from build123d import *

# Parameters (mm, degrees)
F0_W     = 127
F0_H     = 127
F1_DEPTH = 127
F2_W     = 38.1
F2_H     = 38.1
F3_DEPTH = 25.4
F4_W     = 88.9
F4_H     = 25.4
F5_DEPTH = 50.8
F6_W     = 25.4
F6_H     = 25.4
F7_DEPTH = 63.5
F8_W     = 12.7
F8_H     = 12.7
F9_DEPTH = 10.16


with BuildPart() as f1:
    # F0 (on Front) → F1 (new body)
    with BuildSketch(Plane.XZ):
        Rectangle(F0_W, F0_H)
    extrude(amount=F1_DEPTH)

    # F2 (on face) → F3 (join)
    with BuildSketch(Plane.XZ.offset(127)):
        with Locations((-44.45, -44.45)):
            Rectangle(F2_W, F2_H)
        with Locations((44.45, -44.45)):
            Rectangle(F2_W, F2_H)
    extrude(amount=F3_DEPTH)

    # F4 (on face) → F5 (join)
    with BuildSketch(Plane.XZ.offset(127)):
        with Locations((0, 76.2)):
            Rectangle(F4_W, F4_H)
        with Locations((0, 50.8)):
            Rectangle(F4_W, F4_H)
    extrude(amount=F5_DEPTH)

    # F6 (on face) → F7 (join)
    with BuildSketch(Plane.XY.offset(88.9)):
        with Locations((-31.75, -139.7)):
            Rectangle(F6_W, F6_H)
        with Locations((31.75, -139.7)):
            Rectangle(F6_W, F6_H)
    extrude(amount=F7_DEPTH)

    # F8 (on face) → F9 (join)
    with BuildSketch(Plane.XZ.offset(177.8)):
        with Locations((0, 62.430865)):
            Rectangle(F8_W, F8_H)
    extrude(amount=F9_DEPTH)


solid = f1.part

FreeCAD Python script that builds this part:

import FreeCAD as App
import Part
import Sketcher

V = App.Vector
Q = App.Units.Quantity


def add_polygon(sketch, points):
    """Adds a closed chain of lines whose ends are joined by coincident constraints."""
    first, n = sketch.GeometryCount, len(points)
    for a, b in zip(points, points[1:] + points[:1]):
        sketch.addGeometry(Part.LineSegment(App.Vector(*a, 0), App.Vector(*b, 0)), False)
    for i in range(n):
        sketch.addConstraint(Sketcher.Constraint("Coincident", first + i, 2, first + (i + 1) % n, 1))

doc = App.newDocument("Part")
params = doc.addObject("Spreadsheet::Sheet", "Params")
for row, (alias, value) in enumerate([
    ("sketch1_width", "5 in"),
    ("pad1_length", "5 in"),
    ("sketch2_width", "1.5 in"),
    ("pad2_length", "1 in"),
    ("sketch3_height", "2 in"),
    ("sketch3_width", "3.5 in"),
    ("pad3_length", "2 in"),
    ("sketch4_width", "1 in"),
    ("pad4_length", "2.5 in"),
    ("sketch5_width", "0.5 in"),
    ("pad5_length", "0.4 in"),
], start=1):
    params.set(f"A{row}", alias)
    params.set(f"B{row}", "=" + value)
    params.setAlias(f"B{row}", alias)

body = doc.addObject("PartDesign::Body", "Body")

sketch1 = body.newObject("Sketcher::SketchObject", "Sketch")
sketch1.AttachmentSupport = (doc.getObject("XZ_Plane"), [""])
sketch1.MapMode = "FlatFace"
add_polygon(sketch1, [(-63.5, 63.5), (-63.5, -63.5), (63.5, -63.5), (63.5, 63.5)])
sketch1.addConstraint([
    Sketcher.Constraint("Vertical", 0),
    Sketcher.Constraint("Horizontal", 1),
    Sketcher.Constraint("Vertical", 2),
    Sketcher.Constraint("Horizontal", 3),
    Sketcher.Constraint("Symmetric", 0, 2, 2, 2, -1, 1),
    Sketcher.Constraint("Equal", 3, 0),
    Sketcher.Constraint("DistanceX", 1, 1, 1, 2, Q("5 in")),
])
sketch1.setExpression("Constraints[10]", "Params.sketch1_width")
pad1 = body.newObject("PartDesign::Pad", "Pad")
pad1.Profile = sketch1
pad1.setExpression("Length", "Params.pad1_length")

sketch2 = body.newObject("Sketcher::SketchObject", "Sketch001")
sketch2.AttachmentSupport = (doc.getObject("XZ_Plane"), [""])
sketch2.MapMode = "FlatFace"
sketch2.AttachmentOffset = App.Placement(V(0, 0, 5 * 25.4), App.Rotation())
add_polygon(sketch2, [(-63.5, -25.4), (-63.5, -63.5), (-25.4, -63.5), (-25.4, -25.4)])
add_polygon(sketch2, [(25.4, -25.4), (25.4, -63.5), (63.5, -63.5), (63.5, -25.4)])
sketch2.addConstraint([
    Sketcher.Constraint("Vertical", 0),
    Sketcher.Constraint("Horizontal", 1),
    Sketcher.Constraint("Vertical", 2),
    Sketcher.Constraint("Horizontal", 3),
    Sketcher.Constraint("Vertical", 4),
    Sketcher.Constraint("Horizontal", 5),
    Sketcher.Constraint("Vertical", 6),
    Sketcher.Constraint("Horizontal", 7),
    Sketcher.Constraint("Symmetric", 1, 2, 4, 2, -2),
    Sketcher.Constraint("Symmetric", 3, 2, 6, 2, -2),
    Sketcher.Constraint("Equal", 7, 0),
    Sketcher.Constraint("DistanceX", 1, 1, 1, 2, Q("1.5 in")),
    Sketcher.Constraint("DistanceX", 1, 2, -1, 1, Q("1 in")),
    Sketcher.Constraint("DistanceY", 2, 2, -1, 1, Q("1 in")),
])
sketch2.setExpression("Constraints[19]", "Params.sketch2_width")
pad2 = body.newObject("PartDesign::Pad", "Pad001")
pad2.Profile = sketch2
pad2.setExpression("Length", "Params.pad2_length")

sketch3 = body.newObject("Sketcher::SketchObject", "Sketch002")
sketch3.AttachmentSupport = (doc.getObject("XZ_Plane"), [""])
sketch3.MapMode = "FlatFace"
sketch3.AttachmentOffset = App.Placement(V(0, 0, 5 * 25.4), App.Rotation())
add_polygon(sketch3, [(-44.45, 88.9), (-44.45, 38.1), (44.45, 38.1), (44.45, 88.9)])
sketch3.addConstraint([
    Sketcher.Constraint("Vertical", 0),
    Sketcher.Constraint("Horizontal", 1),
    Sketcher.Constraint("Vertical", 2),
    Sketcher.Constraint("Horizontal", 3),
    Sketcher.Constraint("DistanceY", 0, 2, 0, 1, Q("2 in")),
    Sketcher.Constraint("DistanceX", 1, 1, 1, 2, Q("3.5 in")),
    Sketcher.Constraint("DistanceY", -1, 1, 0, 2, Q("1.5 in")),
    Sketcher.Constraint("DistanceX", 0, 2, -1, 1, Q("1.75 in")),
])
sketch3.setExpression("Constraints[8]", "Params.sketch3_height")
sketch3.setExpression("Constraints[9]", "Params.sketch3_width")
pad3 = body.newObject("PartDesign::Pad", "Pad002")
pad3.Profile = sketch3
pad3.setExpression("Length", "Params.pad3_length")

sketch4 = body.newObject("Sketcher::SketchObject", "Sketch003")
sketch4.AttachmentSupport = (doc.getObject("XY_Plane"), [""])
sketch4.MapMode = "FlatFace"
sketch4.AttachmentOffset = App.Placement(V(0, 0, 3.5 * 25.4), App.Rotation())
add_polygon(sketch4, [(-44.45, -127), (-44.45, -152.4), (-19.05, -152.4), (-19.05, -127)])
add_polygon(sketch4, [(19.05, -127), (19.05, -152.4), (44.45, -152.4), (44.45, -127)])
sketch4.addConstraint([
    Sketcher.Constraint("Vertical", 0),
    Sketcher.Constraint("Horizontal", 1),
    Sketcher.Constraint("Vertical", 2),
    Sketcher.Constraint("Horizontal", 3),
    Sketcher.Constraint("Vertical", 4),
    Sketcher.Constraint("Horizontal", 5),
    Sketcher.Constraint("Vertical", 6),
    Sketcher.Constraint("Horizontal", 7),
    Sketcher.Constraint("Symmetric", 1, 2, 4, 2, -2),
    Sketcher.Constraint("Symmetric", 3, 2, 6, 2, -2),
    Sketcher.Constraint("Equal", 7, 0),
    Sketcher.Constraint("DistanceX", 1, 1, 1, 2, Q("1 in")),
    Sketcher.Constraint("DistanceY", 0, 2, -1, 1, Q("6 in")),
    Sketcher.Constraint("DistanceX", 1, 2, 4, 2, Q("1.5 in")),
])
sketch4.setExpression("Constraints[19]", "Params.sketch4_width")
pad4 = body.newObject("PartDesign::Pad", "Pad003")
pad4.Profile = sketch4
pad4.setExpression("Length", "Params.pad4_length")

sketch5 = body.newObject("Sketcher::SketchObject", "Sketch004")
sketch5.AttachmentSupport = (doc.getObject("XZ_Plane"), [""])
sketch5.MapMode = "FlatFace"
sketch5.AttachmentOffset = App.Placement(V(0, 0, 7 * 25.4), App.Rotation())
add_polygon(sketch5, [(-6.35, 68.780865), (-6.35, 56.080865), (6.35, 56.080865), (6.35, 68.780865)])
sketch5.addConstraint([
    Sketcher.Constraint("Vertical", 0),
    Sketcher.Constraint("Horizontal", 1),
    Sketcher.Constraint("Vertical", 2),
    Sketcher.Constraint("Horizontal", 3),
    Sketcher.Constraint("Equal", 3, 0),
    Sketcher.Constraint("DistanceX", 1, 1, 1, 2, Q("0.5 in")),
    Sketcher.Constraint("DistanceX", 0, 2, -1, 1, Q("0.25 in")),
    Sketcher.Constraint("DistanceY", -1, 1, 0, 2, 56.080865),
])
sketch5.setExpression("Constraints[9]", "Params.sketch5_width")
pad5 = body.newObject("PartDesign::Pad", "Pad004")
pad5.Profile = sketch5
pad5.setExpression("Length", "Params.pad5_length")

doc.recompute()
